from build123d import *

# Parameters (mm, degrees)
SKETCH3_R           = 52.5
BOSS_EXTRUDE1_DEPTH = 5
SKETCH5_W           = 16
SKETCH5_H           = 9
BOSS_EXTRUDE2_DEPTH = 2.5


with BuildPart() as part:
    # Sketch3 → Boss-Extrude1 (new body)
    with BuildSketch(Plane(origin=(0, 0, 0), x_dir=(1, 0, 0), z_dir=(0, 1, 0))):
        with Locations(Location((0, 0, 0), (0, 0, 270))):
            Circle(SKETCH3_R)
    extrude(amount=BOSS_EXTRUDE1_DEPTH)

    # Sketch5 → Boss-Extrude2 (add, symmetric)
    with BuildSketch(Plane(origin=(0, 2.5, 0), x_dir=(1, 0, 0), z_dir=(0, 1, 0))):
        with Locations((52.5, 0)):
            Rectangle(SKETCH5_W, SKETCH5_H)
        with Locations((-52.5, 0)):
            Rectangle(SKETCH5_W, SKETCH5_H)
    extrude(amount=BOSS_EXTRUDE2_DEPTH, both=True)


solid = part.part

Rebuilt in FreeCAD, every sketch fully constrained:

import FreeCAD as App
import Part
import Sketcher
from FreeCAD import Vector
Q = App.Units.Quantity

doc = App.newDocument("Part")
body = doc.addObject("PartDesign::Body", "Body")

# Sketch on XZ plane
sketch1 = body.newObject("Sketcher::SketchObject", "Sketch")
sketch1.AttachmentSupport = (doc.getObject("XZ_Plane"), [""])
sketch1.MapMode = "FlatFace"
sketch1.addGeometry(Part.Circle(Vector(0, 0, 0), Vector(0, 0, 1), 52), False)
sketch1.addConstraint([
    Sketcher.Constraint("Coincident", 0, 3, -1, 1),
    Sketcher.Constraint("Diameter", 0, Q("105 mm")),
])
pad1 = body.newObject("PartDesign::Pad", "Pad")
pad1.Profile = sketch1
pad1.Length = 5
pad1.Reversed = True

# Sketch on XZ plane
sketch2 = body.newObject("Sketcher::SketchObject", "Sketch001")
sketch2.AttachmentSupport = (doc.getObject("XZ_Plane"), [""])
sketch2.MapMode = "FlatFace"
sketch2.AttachmentOffset = App.Placement(Vector(0, 0, -2.5), App.Rotation())
sketch2.addGeometry([
    Part.LineSegment(Vector(44, -4, 0), Vector(44, 4, 0)),  # 0
    Part.LineSegment(Vector(44, 4, 0), Vector(60, 4, 0)),  # 1
    Part.LineSegment(Vector(60, 4, 0), Vector(60, -4, 0)),  # 2
    Part.LineSegment(Vector(60, -4, 0), Vector(44, -4, 0)),  # 3
    Part.LineSegment(Vector(-60, -4, 0), Vector(-60, 4, 0)),  # 4
    Part.LineSegment(Vector(-60, 4, 0), Vector(-44, 4, 0)),  # 5
    Part.LineSegment(Vector(-44, 4, 0), Vector(-44, -4, 0)),  # 6
    Part.LineSegment(Vector(-44, -4, 0), Vector(-60, -4, 0)),  # 7
], False)
sketch2.addConstraint([
    Sketcher.Constraint("Coincident", 0, 2, 1, 1),
    Sketcher.Constraint("Coincident", 1, 2, 2, 1),
    Sketcher.Constraint("Coincident", 2, 2, 3, 1),
    Sketcher.Constraint("Coincident", 3, 2, 0, 1),
    Sketcher.Constraint("Coincident", 4, 2, 5, 1),
    Sketcher.Constraint("Coincident", 5, 2, 6, 1),
    Sketcher.Constraint("Coincident", 6, 2, 7, 1),
    Sketcher.Constraint("Coincident", 7, 2, 4, 1),
    Sketcher.Constraint("Vertical", 0),
    Sketcher.Constraint("Horizontal", 1),
    Sketcher.Constraint("Vertical", 2),
    Sketcher.Constraint("Horizontal", 3),
    Sketcher.Constraint("Vertical", 4),
    Sketcher.Constraint("Horizontal", 5),
    Sketcher.Constraint("Vertical", 6),
    Sketcher.Constraint("Horizontal", 7),
    Sketcher.Constraint("Symmetric", 2, 2, 4, 2, -1, 1),
    Sketcher.Constraint("Symmetric", 0, 2, 6, 2, -1, 1),
    Sketcher.Constraint("Horizontal", 1, 2, 4, 2),
    Sketcher.Constraint("DistanceX", 1, 1, 1, 2, Q("16 mm")),
    Sketcher.Constraint("DistanceY", 0, 1, 0, 2, Q("9 mm")),
    Sketcher.Constraint("DistanceX", 4, 2, 0, 2, Q("105 mm")),
])
pad2 = body.newObject("PartDesign::Pad", "Pad001")
pad2.Profile = sketch2
pad2.Length = 5
pad2.Midplane = True

doc.recompute()
